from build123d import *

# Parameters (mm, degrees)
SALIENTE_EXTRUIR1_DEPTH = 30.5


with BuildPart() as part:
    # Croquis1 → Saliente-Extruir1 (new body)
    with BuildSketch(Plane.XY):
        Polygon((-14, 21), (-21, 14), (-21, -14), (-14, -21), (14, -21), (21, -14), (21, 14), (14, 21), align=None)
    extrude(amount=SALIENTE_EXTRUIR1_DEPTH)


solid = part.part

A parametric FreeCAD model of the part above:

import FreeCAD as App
import Part
import Sketcher

doc = App.newDocument("Part")
body = doc.addObject("PartDesign::Body", "Body")

# Sketch on XY plane
sketch1 = body.newObject("Sketcher::SketchObject", "Sketch")
sketch1.AttachmentSupport = (doc.getObject("XY_Plane"), [""])
sketch1.MapMode = "FlatFace"
sketch1.addGeometry([
    Part.LineSegment(App.Vector(-14, 21, 0), App.Vector(-21, 14, 0)),  # 0
    Part.LineSegment(App.Vector(-21, 14, 0), App.Vector(-21, -14, 0)),  # 1
    Part.LineSegment(App.Vector(-21, -14, 0), App.Vector(-14, -21, 0)),  # 2
    Part.LineSegment(App.Vector(-14, -21, 0), App.Vector(14, -21, 0)),  # 3
    Part.LineSegment(App.Vector(14, -21, 0), App.Vector(21, -14, 0)),  # 4
    Part.LineSegment(App.Vector(21, -14, 0), App.Vector(21, 14, 0)),  # 5
    Part.LineSegment(App.Vector(21, 14, 0), App.Vector(14, 21, 0)),  # 6
    Part.LineSegment(App.Vector(14, 21, 0), App.Vector(-14, 21, 0)),  # 7
], False)
sketch1.addConstraint([
    Sketcher.Constraint("Coincident", 0, 2, 1, 1),
    Sketcher.Constraint("Coincident", 1, 2, 2, 1),
    Sketcher.Constraint("Coincident", 2, 2, 3, 1),
    Sketcher.Constraint("Coincident", 3, 2, 4, 1),
    Sketcher.Constraint("Coincident", 4, 2, 5, 1),
    Sketcher.Constraint("Coincident", 5, 2, 6, 1),
    Sketcher.Constraint("Coincident", 6, 2, 7, 1),
    Sketcher.Constraint("Coincident", 7, 2, 0, 1),
    Sketcher.Constraint("Vertical", 1),
    Sketcher.Constraint("Horizontal", 3),
    Sketcher.Constraint("Vertical", 5),
    Sketcher.Constraint("Horizontal", 7),
    Sketcher.Constraint("Symmetric", 0, 2, 4, 2, -1, 1),
    Sketcher.Constraint("Symmetric", 2, 2, 6, 2, -1, 1),
    Sketcher.Constraint("Perpendicular", 0, 2),
    Sketcher.Constraint("Perpendicular", 2, 4),
    Sketcher.Constraint("Perpendicular", 4, 6),
    Sketcher.Constraint("Horizontal", 1, 2, 4, 2),
    Sketcher.Constraint("Vertical", 3, 2, 6, 2),
    Sketcher.Constraint("Equal", 7, 1),
    Sketcher.Constraint("DistanceX", 3, 1, 3, 2, 28.0),
    Sketcher.Constraint("DistanceX", 0, 2, -1, 1, 21.0),
])
pad1 = body.newObject("PartDesign::Pad", "Pad")
pad1.Profile = sketch1
pad1.Length = 30.5

doc.recompute()
